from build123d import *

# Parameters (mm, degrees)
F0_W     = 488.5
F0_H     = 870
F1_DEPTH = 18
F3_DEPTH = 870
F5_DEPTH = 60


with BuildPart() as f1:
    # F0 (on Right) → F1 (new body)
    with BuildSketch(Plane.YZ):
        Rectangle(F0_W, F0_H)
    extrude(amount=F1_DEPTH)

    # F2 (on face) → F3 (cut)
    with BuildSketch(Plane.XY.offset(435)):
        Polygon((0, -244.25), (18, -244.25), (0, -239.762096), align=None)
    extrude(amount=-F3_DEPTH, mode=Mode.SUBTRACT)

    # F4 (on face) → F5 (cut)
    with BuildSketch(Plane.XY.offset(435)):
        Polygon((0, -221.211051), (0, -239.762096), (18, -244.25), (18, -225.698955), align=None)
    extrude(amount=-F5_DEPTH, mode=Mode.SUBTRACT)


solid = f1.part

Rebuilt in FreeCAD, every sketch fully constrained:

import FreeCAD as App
import Part
import Sketcher

V = App.Vector
Q = App.Units.Quantity

doc = App.newDocument("Part")
body = doc.addObject("PartDesign::Body", "Body")

# Sketch on YZ plane
sketch1 = body.newObject("Sketcher::SketchObject", "Sketch")
sketch1.AttachmentSupport = (doc.getObject("YZ_Plane"), [""])
sketch1.MapMode = "FlatFace"
sketch1.addGeometry([
    Part.LineSegment(V(-244, 435, 0), V(-244, -435, 0)),
    Part.LineSegment(V(-244, -435, 0), V(244, -435, 0)),
    Part.LineSegment(V(244, -435, 0), V(244, 435, 0)),
    Part.LineSegment(V(244, 435, 0), V(-244, 435, 0)),
], False)
sketch1.addConstraint([
    Sketcher.Constraint("Coincident", 0, 2, 1, 1),
    Sketcher.Constraint("Coincident", 1, 2, 2, 1),
    Sketcher.Constraint("Coincident", 2, 2, 3, 1),
    Sketcher.Constraint("Coincident", 3, 2, 0, 1),
    Sketcher.Constraint("Vertical", 0),
    Sketcher.Constraint("Horizontal", 1),
    Sketcher.Constraint("Vertical", 2),
    Sketcher.Constraint("Horizontal", 3),
    Sketcher.Constraint("Symmetric", 0, 2, 2, 2, -1, 1),
    Sketcher.Constraint("DistanceY", 0, 2, 0, 1, 870.0),
    Sketcher.Constraint("DistanceX", 1, 1, 1, 2, 488.5),
])
pad1 = body.newObject("PartDesign::Pad", "Pad")
pad1.Profile = sketch1
pad1.Length = 18

# Sketch on XY plane
sketch2 = body.newObject("Sketcher::SketchObject", "Sketch001")
sketch2.AttachmentSupport = (doc.getObject("XY_Plane"), [""])
sketch2.MapMode = "FlatFace"
sketch2.AttachmentOffset = App.Placement(V(0, 0, 435), App.Rotation())
sketch2.addGeometry([
    Part.LineSegment(V(0, -244.2, 0), V(18, -244.2, 0)),
    Part.LineSegment(V(18, -244.2, 0), V(0, -239.8, 0)),
    Part.LineSegment(V(0, -239.8, 0), V(0, -244.2, 0)),
], False)
sketch2.addConstraint([
    Sketcher.Constraint("Coincident", 0, 2, 1, 1),
    Sketcher.Constraint("Coincident", 1, 2, 2, 1),
    Sketcher.Constraint("Coincident", 2, 2, 0, 1),
    Sketcher.Constraint("Horizontal", 0),
    Sketcher.Constraint("Vertical", 2),
    Sketcher.Constraint("PointOnObject", 1, 2, -2),
    Sketcher.Constraint("DistanceX", 0, 1, 0, 2, 18.0),
    Sketcher.Constraint("Angle", 1, Q("166 deg")),
    Sketcher.Constraint("DistanceY", 0, 2, -1, 1, 244.25),
])
pocket1 = body.newObject("PartDesign::Pocket", "Pocket")
pocket1.Profile = sketch2
pocket1.Length = 870

# Sketch on XY plane
sketch3 = body.newObject("Sketcher::SketchObject", "Sketch002")
sketch3.AttachmentSupport = (doc.getObject("XY_Plane"), [""])
sketch3.MapMode = "FlatFace"
sketch3.AttachmentOffset = App.Placement(V(0, 0, 435), App.Rotation())
sketch3.addGeometry([
    Part.LineSegment(V(0, -221, 0), V(0, -240, 0)),
    Part.LineSegment(V(0, -240, 0), V(18, -244, 0)),
    Part.LineSegment(V(18, -244, 0), V(18, -226, 0)),
    Part.LineSegment(V(18, -226, 0), V(0, -221, 0)),
], False)
sketch3.addConstraint([
    Sketcher.Constraint("Coincident", 0, 2, 1, 1),
    Sketcher.Constraint("Coincident", 1, 2, 2, 1),
    Sketcher.Constraint("Coincident", 2, 2, 3, 1),
    Sketcher.Constraint("Coincident", 3, 2, 0, 1),
    Sketcher.Constraint("Vertical", 0),
    Sketcher.Constraint("Vertical", 2),
    Sketcher.Constraint("PointOnObject", 0, 2, -2),
    Sketcher.Constraint("Parallel", 1, 3),
    Sketcher.Constraint("Angle", 1, Q("-14 deg")),
    Sketcher.Constraint("DistanceX", -1, 1, 1, 2, 18.0),
    Sketcher.Constraint("DistanceY", 1, 2, -1, 1, 244.25),
    Sketcher.Constraint("DistanceY", 0, 2, 0, 1, 18.551045),
])
pocket2 = body.newObject("PartDesign::Pocket", "Pocket001")
pocket2.Profile = sketch3
pocket2.Length = 60

doc.recompute()
